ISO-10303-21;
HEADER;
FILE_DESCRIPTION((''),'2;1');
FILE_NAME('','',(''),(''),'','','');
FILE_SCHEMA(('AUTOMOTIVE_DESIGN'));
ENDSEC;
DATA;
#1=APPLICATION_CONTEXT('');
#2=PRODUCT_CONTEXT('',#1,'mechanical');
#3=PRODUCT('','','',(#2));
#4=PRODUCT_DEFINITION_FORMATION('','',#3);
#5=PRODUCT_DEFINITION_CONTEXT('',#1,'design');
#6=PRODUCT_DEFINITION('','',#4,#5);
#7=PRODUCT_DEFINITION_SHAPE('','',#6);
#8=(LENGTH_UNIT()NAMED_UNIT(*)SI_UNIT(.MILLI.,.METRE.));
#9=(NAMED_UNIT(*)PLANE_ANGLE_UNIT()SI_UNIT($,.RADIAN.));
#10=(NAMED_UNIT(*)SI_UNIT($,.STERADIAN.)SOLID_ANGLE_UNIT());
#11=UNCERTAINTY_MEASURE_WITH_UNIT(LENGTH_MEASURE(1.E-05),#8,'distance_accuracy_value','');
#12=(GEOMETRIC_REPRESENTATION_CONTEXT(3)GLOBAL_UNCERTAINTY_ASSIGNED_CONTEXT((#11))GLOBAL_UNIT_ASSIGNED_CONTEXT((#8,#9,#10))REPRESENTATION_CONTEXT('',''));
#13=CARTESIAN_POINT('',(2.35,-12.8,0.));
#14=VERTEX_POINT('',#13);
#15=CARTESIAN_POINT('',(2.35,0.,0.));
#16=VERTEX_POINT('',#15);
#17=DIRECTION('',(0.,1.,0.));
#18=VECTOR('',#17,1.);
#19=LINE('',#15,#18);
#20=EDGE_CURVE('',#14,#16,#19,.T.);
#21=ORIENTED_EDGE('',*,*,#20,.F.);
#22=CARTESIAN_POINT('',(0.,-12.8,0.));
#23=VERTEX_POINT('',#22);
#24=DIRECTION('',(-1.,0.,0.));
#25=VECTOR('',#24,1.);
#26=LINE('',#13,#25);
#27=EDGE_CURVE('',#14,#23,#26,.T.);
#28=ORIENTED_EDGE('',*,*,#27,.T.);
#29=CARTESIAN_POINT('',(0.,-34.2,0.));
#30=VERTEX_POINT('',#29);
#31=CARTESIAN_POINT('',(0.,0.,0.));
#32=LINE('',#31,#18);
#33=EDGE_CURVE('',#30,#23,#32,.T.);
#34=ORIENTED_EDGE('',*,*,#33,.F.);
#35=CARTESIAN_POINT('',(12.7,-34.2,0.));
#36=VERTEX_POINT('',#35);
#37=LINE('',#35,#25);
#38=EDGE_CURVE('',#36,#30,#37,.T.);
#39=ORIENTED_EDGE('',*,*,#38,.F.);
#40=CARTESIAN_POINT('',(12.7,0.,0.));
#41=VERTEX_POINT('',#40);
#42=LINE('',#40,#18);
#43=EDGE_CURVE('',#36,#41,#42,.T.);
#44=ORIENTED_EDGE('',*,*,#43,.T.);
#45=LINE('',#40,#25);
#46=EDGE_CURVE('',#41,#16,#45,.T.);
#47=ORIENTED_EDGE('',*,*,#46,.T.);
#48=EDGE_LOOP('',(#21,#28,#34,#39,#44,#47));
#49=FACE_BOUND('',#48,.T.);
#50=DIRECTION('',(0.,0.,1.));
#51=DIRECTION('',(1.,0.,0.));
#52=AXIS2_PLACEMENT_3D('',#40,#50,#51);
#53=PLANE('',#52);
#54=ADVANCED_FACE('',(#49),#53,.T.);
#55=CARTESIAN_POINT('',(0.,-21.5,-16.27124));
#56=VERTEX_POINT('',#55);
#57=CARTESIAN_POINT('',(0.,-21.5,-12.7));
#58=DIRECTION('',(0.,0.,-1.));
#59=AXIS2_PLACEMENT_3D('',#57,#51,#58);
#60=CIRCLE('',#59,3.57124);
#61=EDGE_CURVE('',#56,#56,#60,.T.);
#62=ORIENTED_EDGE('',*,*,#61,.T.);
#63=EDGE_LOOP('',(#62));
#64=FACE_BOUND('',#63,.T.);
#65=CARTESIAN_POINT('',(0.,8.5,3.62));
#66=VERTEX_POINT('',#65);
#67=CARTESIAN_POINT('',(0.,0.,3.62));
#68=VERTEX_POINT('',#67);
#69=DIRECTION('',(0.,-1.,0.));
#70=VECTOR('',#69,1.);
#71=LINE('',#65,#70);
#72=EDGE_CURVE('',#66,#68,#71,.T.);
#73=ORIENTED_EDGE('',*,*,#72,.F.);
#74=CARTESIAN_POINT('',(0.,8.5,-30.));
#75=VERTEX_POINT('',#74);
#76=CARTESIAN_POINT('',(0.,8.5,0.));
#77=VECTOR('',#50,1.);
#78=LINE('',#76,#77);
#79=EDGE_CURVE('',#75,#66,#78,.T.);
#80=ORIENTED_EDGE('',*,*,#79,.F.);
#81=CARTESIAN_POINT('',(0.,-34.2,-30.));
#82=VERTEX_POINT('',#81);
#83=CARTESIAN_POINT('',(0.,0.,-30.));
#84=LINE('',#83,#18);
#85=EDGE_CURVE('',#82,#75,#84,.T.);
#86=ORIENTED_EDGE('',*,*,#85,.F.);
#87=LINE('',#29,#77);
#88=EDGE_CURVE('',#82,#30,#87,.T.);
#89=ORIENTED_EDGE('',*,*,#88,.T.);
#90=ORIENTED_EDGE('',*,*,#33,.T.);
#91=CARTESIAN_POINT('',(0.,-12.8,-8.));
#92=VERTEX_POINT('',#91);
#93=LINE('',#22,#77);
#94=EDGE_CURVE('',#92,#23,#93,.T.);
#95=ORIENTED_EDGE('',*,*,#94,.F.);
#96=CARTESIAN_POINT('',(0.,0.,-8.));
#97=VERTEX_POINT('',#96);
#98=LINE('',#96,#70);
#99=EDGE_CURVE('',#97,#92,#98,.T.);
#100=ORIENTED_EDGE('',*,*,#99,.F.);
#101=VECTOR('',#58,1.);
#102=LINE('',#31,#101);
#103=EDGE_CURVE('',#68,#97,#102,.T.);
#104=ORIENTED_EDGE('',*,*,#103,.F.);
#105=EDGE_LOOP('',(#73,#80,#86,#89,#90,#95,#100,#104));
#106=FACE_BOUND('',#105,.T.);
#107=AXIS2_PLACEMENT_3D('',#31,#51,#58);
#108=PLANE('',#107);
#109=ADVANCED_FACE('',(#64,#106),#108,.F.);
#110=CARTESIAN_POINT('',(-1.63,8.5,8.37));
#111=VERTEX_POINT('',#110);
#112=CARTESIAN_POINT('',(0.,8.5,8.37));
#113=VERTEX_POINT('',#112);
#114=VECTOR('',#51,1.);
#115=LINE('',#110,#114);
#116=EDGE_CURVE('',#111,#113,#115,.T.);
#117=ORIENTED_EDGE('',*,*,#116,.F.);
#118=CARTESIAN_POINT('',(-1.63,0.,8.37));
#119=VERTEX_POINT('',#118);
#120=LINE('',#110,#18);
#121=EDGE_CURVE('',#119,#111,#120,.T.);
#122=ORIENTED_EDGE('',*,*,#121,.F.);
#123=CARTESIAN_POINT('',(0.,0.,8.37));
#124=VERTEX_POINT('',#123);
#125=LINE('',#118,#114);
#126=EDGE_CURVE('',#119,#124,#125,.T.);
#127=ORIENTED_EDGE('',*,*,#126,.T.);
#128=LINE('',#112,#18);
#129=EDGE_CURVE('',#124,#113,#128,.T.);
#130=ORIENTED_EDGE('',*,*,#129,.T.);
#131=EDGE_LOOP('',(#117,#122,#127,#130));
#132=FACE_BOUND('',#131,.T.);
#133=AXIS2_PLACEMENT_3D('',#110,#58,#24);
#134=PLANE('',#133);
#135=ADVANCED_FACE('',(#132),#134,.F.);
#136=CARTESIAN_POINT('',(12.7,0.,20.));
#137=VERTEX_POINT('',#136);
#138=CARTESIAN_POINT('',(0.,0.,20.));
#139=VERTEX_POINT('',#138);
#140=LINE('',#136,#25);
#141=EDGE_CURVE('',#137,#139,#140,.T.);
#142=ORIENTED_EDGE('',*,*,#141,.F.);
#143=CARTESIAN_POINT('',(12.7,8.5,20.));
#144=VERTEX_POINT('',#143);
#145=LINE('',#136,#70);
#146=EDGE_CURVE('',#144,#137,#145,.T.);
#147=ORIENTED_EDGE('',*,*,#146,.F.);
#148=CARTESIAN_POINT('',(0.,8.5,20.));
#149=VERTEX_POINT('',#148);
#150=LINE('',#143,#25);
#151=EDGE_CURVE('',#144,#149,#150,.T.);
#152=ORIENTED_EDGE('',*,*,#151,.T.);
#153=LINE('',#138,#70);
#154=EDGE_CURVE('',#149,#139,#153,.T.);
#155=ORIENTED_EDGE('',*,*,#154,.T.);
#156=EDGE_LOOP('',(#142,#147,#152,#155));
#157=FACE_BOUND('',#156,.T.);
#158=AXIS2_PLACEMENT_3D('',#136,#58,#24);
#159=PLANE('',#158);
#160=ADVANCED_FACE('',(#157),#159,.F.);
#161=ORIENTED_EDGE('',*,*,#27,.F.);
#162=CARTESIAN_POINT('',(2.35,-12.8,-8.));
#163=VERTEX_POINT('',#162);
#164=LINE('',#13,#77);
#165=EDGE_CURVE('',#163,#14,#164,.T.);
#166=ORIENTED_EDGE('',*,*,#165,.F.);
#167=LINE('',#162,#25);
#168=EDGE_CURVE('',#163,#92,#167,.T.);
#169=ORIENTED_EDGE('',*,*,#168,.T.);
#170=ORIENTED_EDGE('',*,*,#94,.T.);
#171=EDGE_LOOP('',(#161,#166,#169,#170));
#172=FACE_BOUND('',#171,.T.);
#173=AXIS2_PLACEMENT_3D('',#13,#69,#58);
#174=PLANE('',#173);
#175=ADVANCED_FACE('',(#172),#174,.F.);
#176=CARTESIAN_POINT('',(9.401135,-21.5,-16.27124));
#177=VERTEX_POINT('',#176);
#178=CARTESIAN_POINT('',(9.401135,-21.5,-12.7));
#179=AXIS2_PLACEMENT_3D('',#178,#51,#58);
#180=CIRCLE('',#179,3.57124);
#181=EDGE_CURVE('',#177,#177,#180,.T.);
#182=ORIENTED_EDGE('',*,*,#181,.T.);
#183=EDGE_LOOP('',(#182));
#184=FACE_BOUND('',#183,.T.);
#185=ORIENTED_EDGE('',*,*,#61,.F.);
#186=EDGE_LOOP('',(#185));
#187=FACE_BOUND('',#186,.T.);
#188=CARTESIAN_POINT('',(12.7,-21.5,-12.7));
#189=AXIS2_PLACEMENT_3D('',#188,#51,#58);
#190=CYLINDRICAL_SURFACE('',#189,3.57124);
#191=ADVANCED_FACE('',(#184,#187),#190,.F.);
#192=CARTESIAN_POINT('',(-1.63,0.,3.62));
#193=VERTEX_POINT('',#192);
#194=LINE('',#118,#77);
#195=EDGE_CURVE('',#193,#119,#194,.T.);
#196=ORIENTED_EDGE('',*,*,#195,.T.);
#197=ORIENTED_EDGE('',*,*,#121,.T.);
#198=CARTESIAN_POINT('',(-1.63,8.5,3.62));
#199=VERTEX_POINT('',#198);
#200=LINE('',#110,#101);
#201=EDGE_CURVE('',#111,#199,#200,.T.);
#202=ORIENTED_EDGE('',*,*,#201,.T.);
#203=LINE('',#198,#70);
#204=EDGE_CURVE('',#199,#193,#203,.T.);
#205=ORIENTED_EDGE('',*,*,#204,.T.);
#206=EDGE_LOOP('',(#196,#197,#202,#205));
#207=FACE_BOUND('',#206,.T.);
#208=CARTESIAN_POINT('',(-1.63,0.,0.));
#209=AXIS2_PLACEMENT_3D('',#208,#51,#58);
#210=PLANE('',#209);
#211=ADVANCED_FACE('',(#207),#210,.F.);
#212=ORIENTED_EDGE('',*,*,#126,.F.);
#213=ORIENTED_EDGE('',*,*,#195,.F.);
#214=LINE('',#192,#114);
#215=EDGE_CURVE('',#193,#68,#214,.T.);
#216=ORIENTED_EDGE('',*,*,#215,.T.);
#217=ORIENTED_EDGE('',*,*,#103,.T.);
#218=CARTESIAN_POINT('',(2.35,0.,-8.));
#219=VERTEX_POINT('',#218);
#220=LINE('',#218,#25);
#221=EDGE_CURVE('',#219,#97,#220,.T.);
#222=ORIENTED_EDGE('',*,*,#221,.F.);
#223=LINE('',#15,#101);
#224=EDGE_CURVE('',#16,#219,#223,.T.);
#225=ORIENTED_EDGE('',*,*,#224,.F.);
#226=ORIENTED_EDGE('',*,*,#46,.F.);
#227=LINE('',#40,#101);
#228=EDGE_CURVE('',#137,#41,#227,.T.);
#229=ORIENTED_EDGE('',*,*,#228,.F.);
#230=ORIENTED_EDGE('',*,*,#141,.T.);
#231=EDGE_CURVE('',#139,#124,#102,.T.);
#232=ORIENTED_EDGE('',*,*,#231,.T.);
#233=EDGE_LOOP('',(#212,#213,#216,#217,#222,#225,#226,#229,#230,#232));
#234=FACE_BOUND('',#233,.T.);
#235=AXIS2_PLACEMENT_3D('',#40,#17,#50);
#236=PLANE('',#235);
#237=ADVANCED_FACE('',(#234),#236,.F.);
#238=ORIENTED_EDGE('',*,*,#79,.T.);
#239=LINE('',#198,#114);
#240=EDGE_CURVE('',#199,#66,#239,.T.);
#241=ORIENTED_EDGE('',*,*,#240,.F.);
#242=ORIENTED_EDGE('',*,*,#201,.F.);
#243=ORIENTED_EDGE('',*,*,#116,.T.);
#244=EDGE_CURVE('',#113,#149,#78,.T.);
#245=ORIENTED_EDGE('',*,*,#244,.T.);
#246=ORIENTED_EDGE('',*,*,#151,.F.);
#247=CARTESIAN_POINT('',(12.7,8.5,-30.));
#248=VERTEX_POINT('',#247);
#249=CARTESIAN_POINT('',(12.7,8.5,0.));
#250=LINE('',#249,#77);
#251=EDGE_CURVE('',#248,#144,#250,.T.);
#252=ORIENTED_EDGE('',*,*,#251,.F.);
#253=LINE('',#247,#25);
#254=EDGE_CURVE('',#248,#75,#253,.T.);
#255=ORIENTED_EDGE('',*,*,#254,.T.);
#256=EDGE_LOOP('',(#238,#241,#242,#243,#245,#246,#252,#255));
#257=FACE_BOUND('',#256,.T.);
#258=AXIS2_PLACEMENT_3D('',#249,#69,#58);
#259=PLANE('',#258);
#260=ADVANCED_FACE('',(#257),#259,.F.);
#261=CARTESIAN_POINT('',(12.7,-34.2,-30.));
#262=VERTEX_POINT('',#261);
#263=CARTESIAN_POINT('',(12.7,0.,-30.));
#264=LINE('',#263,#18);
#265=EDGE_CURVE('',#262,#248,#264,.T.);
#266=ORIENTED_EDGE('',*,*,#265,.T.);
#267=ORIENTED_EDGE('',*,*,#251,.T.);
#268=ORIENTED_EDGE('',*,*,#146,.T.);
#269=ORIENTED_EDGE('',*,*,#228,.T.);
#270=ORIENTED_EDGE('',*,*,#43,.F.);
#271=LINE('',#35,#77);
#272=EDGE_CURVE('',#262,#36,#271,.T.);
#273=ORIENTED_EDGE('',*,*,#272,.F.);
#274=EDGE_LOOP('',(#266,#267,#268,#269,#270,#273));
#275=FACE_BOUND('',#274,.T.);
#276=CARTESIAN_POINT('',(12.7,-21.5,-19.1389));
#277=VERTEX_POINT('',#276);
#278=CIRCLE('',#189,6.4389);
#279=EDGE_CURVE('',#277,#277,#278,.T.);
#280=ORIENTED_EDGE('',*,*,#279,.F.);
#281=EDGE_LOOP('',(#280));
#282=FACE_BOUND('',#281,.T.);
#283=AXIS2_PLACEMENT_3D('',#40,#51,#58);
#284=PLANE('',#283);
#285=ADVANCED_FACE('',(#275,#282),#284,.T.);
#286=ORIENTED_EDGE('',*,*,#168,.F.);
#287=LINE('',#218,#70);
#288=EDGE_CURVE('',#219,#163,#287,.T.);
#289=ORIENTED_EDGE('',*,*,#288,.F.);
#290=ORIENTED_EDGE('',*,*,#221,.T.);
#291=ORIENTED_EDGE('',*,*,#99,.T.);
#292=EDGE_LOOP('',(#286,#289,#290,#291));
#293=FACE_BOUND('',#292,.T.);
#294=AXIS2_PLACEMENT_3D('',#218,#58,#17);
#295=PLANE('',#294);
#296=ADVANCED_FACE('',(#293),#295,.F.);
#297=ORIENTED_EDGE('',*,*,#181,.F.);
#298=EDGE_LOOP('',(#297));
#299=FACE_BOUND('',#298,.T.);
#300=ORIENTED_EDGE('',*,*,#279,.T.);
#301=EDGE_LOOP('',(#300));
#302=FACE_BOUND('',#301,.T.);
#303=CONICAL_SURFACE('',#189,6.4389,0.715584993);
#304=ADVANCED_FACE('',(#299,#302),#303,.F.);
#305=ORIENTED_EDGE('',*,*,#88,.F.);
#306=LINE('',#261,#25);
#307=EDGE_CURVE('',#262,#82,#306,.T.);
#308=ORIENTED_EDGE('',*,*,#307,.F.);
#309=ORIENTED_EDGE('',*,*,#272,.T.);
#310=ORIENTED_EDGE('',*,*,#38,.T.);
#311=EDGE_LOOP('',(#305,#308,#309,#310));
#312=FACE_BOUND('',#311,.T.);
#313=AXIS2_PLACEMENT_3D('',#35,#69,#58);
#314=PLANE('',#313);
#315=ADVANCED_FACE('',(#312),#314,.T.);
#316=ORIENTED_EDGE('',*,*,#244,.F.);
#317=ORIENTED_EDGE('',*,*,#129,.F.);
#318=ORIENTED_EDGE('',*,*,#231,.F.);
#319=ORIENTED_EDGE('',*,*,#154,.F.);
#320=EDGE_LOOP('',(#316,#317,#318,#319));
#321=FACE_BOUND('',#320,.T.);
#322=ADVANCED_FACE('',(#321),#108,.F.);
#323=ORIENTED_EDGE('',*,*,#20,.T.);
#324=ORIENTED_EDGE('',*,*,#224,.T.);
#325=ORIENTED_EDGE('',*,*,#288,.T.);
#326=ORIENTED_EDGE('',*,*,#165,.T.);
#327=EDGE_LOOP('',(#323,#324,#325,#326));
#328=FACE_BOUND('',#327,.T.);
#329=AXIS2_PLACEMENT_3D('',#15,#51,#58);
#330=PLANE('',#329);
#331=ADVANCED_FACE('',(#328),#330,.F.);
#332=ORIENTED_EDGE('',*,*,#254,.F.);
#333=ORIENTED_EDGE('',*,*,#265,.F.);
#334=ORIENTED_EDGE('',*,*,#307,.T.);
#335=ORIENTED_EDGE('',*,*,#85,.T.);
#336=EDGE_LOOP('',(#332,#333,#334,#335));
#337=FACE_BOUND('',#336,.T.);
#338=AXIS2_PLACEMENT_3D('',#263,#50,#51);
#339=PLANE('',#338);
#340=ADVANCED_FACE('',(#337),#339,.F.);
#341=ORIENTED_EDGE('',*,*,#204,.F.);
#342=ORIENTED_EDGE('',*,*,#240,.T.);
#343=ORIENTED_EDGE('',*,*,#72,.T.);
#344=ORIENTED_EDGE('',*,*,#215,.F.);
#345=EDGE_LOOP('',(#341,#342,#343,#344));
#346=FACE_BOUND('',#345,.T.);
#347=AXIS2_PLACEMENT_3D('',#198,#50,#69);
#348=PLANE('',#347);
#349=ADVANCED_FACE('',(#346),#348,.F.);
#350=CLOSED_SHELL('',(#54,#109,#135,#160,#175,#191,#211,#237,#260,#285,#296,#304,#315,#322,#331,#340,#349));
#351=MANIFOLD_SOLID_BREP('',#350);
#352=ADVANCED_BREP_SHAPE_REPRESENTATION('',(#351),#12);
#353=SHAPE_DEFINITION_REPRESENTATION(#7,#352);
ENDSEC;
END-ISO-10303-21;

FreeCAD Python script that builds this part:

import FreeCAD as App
import Part
import Sketcher
from FreeCAD import Vector
Q = App.Units.Quantity


def add_polygon(sketch, points):
    """Adds a closed chain of lines whose ends are joined by coincident constraints."""
    first, n = sketch.GeometryCount, len(points)
    for a, b in zip(points, points[1:] + points[:1]):
        sketch.addGeometry(Part.LineSegment(App.Vector(*a, 0), App.Vector(*b, 0)), False)
    for i in range(n):
        sketch.addConstraint(Sketcher.Constraint("Coincident", first + i, 2, first + (i + 1) % n, 1))

doc = App.newDocument("Part")
body = doc.addObject("PartDesign::Body", "Body")

sketch1 = body.newObject("Sketcher::SketchObject", "Sketch")
sketch1.AttachmentSupport = (doc.getObject("YZ_Plane"), [""])
sketch1.MapMode = "FlatFace"
add_polygon(sketch1, [(0, 0), (-34.2, 0), (-34.2, -30), (8.5, -30), (8.5, 20), (0, 20)])
sketch1.addGeometry(Part.Circle(Vector(-21.5, -12.7, 0), Vector(0, 0, 1), 3.2), False)
sketch1.addConstraint([
    Sketcher.Constraint("Horizontal", 0),
    Sketcher.Constraint("Vertical", 1),
    Sketcher.Constraint("Horizontal", 2),
    Sketcher.Constraint("Vertical", 3),
    Sketcher.Constraint("Horizontal", 4),
    Sketcher.Constraint("Vertical", 5),
    Sketcher.Constraint("Coincident", 5, 2, -1, 1),
    Sketcher.Constraint("Diameter", 6, Q("6.35 mm")),
    Sketcher.Constraint("DistanceY", 1, 2, 1, 1, Q("30 mm")),
    Sketcher.Constraint("DistanceY", 3, 1, 3, 2, Q("50 mm")),
    Sketcher.Constraint("DistanceX", 0, 2, 0, 1, Q("34.2 mm")),
    Sketcher.Constraint("DistanceX", 2, 1, 2, 2, Q("42.7 mm")),
    Sketcher.Constraint("DistanceX", 6, 3, 2, 2, Q("30 mm")),
    Sketcher.Constraint("DistanceY", 6, 3, -1, 1, Q("12.7 mm")),
])
pad1 = body.newObject("PartDesign::Pad", "Pad")
pad1.Profile = sketch1
pad1.Length = 12.7

sketch2 = body.newObject("Sketcher::SketchObject", "Sketch001")
sketch2.AttachmentSupport = (doc.getObject("YZ_Plane"), [""])
sketch2.MapMode = "FlatFace"
sketch2.AttachmentOffset = App.Placement(Vector(0, 0, 12.7), App.Rotation())
sketch2.addGeometry(Part.Circle(Vector(-21.5, -12.7, 0), Vector(0, 0, 1), 3.6), False)
sketch2.addConstraint([
    Sketcher.Constraint("DistanceX", 0, 3, -1, 1, Q("21.5 mm")),
    Sketcher.Constraint("DistanceY", 0, 3, -1, 1, Q("12.7 mm")),
    Sketcher.Constraint("Diameter", 0, Q("7.14248 mm")),
])
doc.recompute()
hole = body.newObject("PartDesign::Hole", "Hole")
hole.Profile = sketch2
hole.ThreadType = "None"
hole.Diameter = 7.14248
hole.DepthType = "ThroughAll"
hole.HoleCutType = "Countersink"
hole.HoleCutDiameter = 12.8778
hole.HoleCutCountersinkAngle = 82

sketch3 = body.newObject("Sketcher::SketchObject", "Sketch002")
sketch3.AttachmentSupport = (doc.getObject("YZ_Plane"), [""])
sketch3.MapMode = "FlatFace"
add_polygon(sketch3, [(0, -8), (-13, -8), (-13, 0), (0, 0)])
sketch3.addConstraint([
    Sketcher.Constraint("Horizontal", 0),
    Sketcher.Constraint("Vertical", 1),
    Sketcher.Constraint("Horizontal", 2),
    Sketcher.Constraint("Vertical", 3),
    Sketcher.Constraint("Coincident", 2, 2, -1, 1),
    Sketcher.Constraint("DistanceY", 1, 1, 1, 2, Q("8 mm")),
    Sketcher.Constraint("DistanceX", 0, 2, 0, 1, Q("12.8 mm")),
])
pocket1 = body.newObject("PartDesign::Pocket", "Pocket")
pocket1.Profile = sketch3
pocket1.Length = 2.35
pocket1.Reversed = True

sketch4 = body.newObject("Sketcher::SketchObject", "Sketch003")
sketch4.AttachmentSupport = (doc.getObject("YZ_Plane"), [""])
sketch4.MapMode = "FlatFace"
add_polygon(sketch4, [(8.5, 3.6), (0, 3.6), (0, 8.4), (8.5, 8.4)])
sketch4.addConstraint([
    Sketcher.Constraint("Horizontal", 0),
    Sketcher.Constraint("Vertical", 1),
    Sketcher.Constraint("Horizontal", 2),
    Sketcher.Constraint("Vertical", 3),
    Sketcher.Constraint("PointOnObject", 0, 2, -2),
    Sketcher.Constraint("DistanceX", 0, 2, 0, 1, Q("8.5 mm")),
    Sketcher.Constraint("DistanceY", 1, 1, 1, 2, Q("4.75 mm")),
    Sketcher.Constraint("DistanceY", -1, 1, 0, 2, Q("3.62 mm")),
])
pad2 = body.newObject("PartDesign::Pad", "Pad001")
pad2.Profile = sketch4
pad2.Length = 1.63
pad2.Reversed = True

doc.recompute()
